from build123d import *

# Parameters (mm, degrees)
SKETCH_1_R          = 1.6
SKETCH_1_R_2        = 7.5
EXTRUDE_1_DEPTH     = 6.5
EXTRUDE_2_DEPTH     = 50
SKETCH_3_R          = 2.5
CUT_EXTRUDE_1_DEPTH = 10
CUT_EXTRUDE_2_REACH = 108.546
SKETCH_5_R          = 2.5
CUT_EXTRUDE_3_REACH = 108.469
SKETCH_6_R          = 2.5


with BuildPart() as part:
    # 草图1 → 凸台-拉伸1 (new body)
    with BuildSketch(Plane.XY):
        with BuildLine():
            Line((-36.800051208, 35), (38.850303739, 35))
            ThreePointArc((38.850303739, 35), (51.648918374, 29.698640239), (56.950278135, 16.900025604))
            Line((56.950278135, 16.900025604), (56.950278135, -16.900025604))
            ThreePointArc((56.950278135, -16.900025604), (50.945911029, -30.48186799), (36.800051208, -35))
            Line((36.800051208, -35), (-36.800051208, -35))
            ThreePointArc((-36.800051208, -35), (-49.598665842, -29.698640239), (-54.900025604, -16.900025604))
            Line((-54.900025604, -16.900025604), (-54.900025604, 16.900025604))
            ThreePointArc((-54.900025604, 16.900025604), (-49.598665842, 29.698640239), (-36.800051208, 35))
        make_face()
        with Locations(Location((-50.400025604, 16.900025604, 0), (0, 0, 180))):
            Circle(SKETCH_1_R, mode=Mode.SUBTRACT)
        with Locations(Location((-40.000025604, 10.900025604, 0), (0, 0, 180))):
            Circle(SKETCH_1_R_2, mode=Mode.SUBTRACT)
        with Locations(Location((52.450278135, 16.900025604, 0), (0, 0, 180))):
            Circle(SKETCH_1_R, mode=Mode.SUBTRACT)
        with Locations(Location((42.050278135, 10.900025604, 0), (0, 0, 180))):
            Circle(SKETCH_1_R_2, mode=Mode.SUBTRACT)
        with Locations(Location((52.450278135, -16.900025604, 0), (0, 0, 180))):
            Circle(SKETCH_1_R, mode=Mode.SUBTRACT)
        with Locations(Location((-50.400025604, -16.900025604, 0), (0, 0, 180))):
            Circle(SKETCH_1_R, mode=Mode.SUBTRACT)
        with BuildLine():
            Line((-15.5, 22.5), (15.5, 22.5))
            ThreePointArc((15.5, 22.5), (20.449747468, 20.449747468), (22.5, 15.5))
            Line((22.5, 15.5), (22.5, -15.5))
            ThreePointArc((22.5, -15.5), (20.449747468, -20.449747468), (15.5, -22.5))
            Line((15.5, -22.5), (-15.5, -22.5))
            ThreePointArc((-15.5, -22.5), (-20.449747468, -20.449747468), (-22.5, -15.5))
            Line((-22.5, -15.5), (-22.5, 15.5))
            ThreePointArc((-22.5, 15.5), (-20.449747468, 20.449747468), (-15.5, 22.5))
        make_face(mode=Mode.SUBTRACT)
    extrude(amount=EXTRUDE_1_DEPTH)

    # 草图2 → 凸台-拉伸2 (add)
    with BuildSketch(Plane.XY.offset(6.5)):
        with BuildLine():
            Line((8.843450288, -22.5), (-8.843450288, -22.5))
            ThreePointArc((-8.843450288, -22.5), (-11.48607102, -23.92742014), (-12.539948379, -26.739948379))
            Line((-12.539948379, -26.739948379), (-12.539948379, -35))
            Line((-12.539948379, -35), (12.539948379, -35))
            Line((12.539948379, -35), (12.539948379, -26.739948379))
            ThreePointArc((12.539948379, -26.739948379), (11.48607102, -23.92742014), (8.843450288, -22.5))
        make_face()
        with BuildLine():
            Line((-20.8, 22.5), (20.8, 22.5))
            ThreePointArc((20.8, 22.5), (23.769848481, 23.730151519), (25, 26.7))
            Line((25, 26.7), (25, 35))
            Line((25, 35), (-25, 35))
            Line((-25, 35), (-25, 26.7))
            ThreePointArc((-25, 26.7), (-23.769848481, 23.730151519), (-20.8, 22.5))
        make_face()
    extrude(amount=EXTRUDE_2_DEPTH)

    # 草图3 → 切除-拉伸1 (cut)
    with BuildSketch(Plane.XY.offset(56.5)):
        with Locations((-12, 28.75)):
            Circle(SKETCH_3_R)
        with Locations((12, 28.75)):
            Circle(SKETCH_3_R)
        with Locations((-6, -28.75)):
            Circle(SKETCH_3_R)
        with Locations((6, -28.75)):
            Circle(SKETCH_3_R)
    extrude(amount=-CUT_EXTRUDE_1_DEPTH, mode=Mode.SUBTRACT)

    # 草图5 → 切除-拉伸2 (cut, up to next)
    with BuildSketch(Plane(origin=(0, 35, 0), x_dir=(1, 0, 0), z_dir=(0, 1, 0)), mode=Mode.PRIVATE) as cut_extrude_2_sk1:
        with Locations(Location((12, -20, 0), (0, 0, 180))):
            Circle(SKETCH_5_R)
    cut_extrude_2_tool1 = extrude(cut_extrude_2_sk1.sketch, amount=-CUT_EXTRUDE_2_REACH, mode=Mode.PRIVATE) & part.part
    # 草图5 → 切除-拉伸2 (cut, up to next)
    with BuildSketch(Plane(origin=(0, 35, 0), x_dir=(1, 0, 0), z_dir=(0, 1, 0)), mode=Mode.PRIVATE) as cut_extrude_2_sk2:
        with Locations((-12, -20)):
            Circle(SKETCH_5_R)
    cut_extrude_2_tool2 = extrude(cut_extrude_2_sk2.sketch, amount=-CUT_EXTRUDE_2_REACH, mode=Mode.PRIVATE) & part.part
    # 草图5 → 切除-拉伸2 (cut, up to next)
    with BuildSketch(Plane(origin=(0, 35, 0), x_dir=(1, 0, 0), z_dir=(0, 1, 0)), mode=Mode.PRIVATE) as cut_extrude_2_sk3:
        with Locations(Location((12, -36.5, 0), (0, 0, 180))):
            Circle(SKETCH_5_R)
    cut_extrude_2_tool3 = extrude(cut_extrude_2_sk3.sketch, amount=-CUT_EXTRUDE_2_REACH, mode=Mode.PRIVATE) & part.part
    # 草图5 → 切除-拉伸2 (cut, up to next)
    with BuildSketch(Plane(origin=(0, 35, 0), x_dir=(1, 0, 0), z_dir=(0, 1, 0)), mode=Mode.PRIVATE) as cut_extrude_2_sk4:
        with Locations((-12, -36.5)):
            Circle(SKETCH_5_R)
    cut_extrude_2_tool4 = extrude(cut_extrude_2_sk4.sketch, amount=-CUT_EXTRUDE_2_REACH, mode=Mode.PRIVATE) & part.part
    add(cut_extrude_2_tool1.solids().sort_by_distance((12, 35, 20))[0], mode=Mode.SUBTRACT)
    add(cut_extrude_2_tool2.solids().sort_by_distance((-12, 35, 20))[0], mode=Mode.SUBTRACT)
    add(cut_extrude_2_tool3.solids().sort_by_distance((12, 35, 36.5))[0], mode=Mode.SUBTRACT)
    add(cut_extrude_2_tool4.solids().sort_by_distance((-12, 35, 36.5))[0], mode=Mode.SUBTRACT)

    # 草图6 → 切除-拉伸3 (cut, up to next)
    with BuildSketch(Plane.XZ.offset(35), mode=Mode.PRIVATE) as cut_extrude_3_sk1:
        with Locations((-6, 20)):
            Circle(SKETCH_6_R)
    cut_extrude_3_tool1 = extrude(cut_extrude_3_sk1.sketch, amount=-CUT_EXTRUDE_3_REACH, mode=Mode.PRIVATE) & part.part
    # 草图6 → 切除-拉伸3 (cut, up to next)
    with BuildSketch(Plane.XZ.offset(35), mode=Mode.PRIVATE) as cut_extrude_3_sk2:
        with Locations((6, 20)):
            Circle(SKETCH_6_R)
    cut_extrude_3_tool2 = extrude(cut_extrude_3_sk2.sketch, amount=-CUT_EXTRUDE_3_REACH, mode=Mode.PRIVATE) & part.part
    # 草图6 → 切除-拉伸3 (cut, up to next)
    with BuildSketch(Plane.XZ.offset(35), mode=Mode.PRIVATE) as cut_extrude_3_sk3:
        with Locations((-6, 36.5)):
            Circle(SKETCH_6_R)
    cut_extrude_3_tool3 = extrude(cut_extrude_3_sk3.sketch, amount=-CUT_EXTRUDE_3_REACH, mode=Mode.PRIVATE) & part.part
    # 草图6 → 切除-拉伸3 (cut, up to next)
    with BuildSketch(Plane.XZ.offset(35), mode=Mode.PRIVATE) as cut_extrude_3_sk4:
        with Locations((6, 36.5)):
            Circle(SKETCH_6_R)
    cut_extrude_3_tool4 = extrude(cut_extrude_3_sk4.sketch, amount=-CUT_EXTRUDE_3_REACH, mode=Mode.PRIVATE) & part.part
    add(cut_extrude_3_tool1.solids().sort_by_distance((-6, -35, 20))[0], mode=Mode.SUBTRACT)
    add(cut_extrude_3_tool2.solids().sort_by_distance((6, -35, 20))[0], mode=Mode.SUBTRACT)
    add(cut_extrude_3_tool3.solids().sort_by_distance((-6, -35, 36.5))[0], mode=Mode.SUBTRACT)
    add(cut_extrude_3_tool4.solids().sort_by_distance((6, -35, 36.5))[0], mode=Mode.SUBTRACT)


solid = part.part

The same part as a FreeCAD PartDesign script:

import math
import FreeCAD as App
import Part
import Sketcher
Q = App.Units.Quantity

doc = App.newDocument("Part")
body = doc.addObject("PartDesign::Body", "Body")

sketch1 = body.newObject("Sketcher::SketchObject", "Sketch")
sketch1.AttachmentSupport = (doc.getObject("XY_Plane"), [""])
sketch1.MapMode = "FlatFace"
sketch1.addGeometry([
    Part.LineSegment(App.Vector(38.9, 35, 0), App.Vector(-36.8, 35, 0)),
    Part.ArcOfCircle(Part.Circle(App.Vector(-36.8, 16.9, 0), App.Vector(0, 0, 1), 18.1), math.radians(90), math.radians(180)),
    Part.LineSegment(App.Vector(-54.9, 16.9, 0), App.Vector(-54.9, -16.9, 0)),
    Part.ArcOfCircle(Part.Circle(App.Vector(-36.8, -16.9, 0), App.Vector(0, 0, 1), 18.1), math.radians(-180), math.radians(-90)),
    Part.LineSegment(App.Vector(-36.8, -35, 0), App.Vector(36.8, -35, 0)),
    Part.ArcOfCircle(Part.Circle(App.Vector(38.9, -17, 0), App.Vector(0, 0, 1), 18.1), math.radians(-97), math.radians(0)),
    Part.LineSegment(App.Vector(57, -16.9, 0), App.Vector(57, 16.9, 0)),
    Part.ArcOfCircle(Part.Circle(App.Vector(38.9, 16.9, 0), App.Vector(0, 0, 1), 18.1), math.radians(0), math.radians(90)),
    Part.Circle(App.Vector(52.5, -16.9, 0), App.Vector(0, 0, 1), 1.6),
    Part.Circle(App.Vector(-50.4, -16.9, 0), App.Vector(0, 0, 1), 1.6),
    Part.Circle(App.Vector(42.1, 10.9, 0), App.Vector(0, 0, 1), 7.5),
    Part.Circle(App.Vector(52.5, 16.9, 0), App.Vector(0, 0, 1), 1.6),
    Part.LineSegment(App.Vector(-15.5, 22.5, 0), App.Vector(15.5, 22.5, 0)),
    Part.ArcOfCircle(Part.Circle(App.Vector(15.5, 15.5, 0), App.Vector(0, 0, 1), 7), math.radians(0), math.radians(90)),
    Part.LineSegment(App.Vector(22.5, 15.5, 0), App.Vector(22.5, -15.5, 0)),
    Part.ArcOfCircle(Part.Circle(App.Vector(15.5, -15.5, 0), App.Vector(0, 0, 1), 7), math.radians(-90), math.radians(0)),
    Part.LineSegment(App.Vector(15.5, -22.5, 0), App.Vector(-15.5, -22.5, 0)),
    Part.ArcOfCircle(Part.Circle(App.Vector(-15.5, -15.5, 0), App.Vector(0, 0, 1), 7), math.radians(-180), math.radians(-90)),
    Part.LineSegment(App.Vector(-22.5, -15.5, 0), App.Vector(-22.5, 15.5, 0)),
    Part.ArcOfCircle(Part.Circle(App.Vector(-15.5, 15.5, 0), App.Vector(0, 0, 1), 7), math.radians(90), math.radians(180)),
    Part.Circle(App.Vector(-40, 10.9, 0), App.Vector(0, 0, 1), 7.5),
    Part.Circle(App.Vector(-50.4, 16.9, 0), App.Vector(0, 0, 1), 1.6),
], False)
sketch1.addConstraint([
    Sketcher.Constraint("Tangent", 0, 2, 1, 1),
    Sketcher.Constraint("Tangent", 1, 2, 2, 1),
    Sketcher.Constraint("Tangent", 2, 2, 3, 1),
    Sketcher.Constraint("Tangent", 3, 2, 4, 1),
    Sketcher.Constraint("Coincident", 4, 2, 5, 1),
    Sketcher.Constraint("Coincident", 5, 2, 6, 1),
    Sketcher.Constraint("Tangent", 6, 2, 7, 1),
    Sketcher.Constraint("Tangent", 7, 2, 0, 1),
    Sketcher.Constraint("Tangent", 12, 2, 13, 2),
    Sketcher.Constraint("Tangent", 13, 1, 14, 1),
    Sketcher.Constraint("Tangent", 14, 2, 15, 2),
    Sketcher.Constraint("Tangent", 15, 1, 16, 1),
    Sketcher.Constraint("Tangent", 16, 2, 17, 2),
    Sketcher.Constraint("Tangent", 17, 1, 18, 1),
    Sketcher.Constraint("Tangent", 18, 2, 19, 2),
    Sketcher.Constraint("Tangent", 19, 1, 12, 1),
    Sketcher.Constraint("Horizontal", 0),
    Sketcher.Constraint("Vertical", 2),
    Sketcher.Constraint("Horizontal", 4),
    Sketcher.Constraint("Vertical", 6),
    Sketcher.Constraint("Horizontal", 12),
    Sketcher.Constraint("Vertical", 14),
    Sketcher.Constraint("Horizontal", 16),
    Sketcher.Constraint("Vertical", 18),
    Sketcher.Constraint("Equal", 1, 3),
    Sketcher.Constraint("Equal", 3, 5),
    Sketcher.Constraint("Equal", 5, 7),
    Sketcher.Constraint("Equal", 8, 9),
    Sketcher.Constraint("Equal", 9, 11),
    Sketcher.Constraint("Equal", 13, 15),
    Sketcher.Constraint("Equal", 15, 17),
    Sketcher.Constraint("Equal", 17, 19),
    Sketcher.Constraint("Equal", 10, 20),
    Sketcher.Constraint("Equal", 11, 21),
    Sketcher.Constraint("Symmetric", 13, 3, 17, 3, -1, 1),
    Sketcher.Constraint("Symmetric", 0, 2, 4, 2, -1, 1),
    Sketcher.Constraint("Symmetric", 8, 3, 11, 3, -1),
    Sketcher.Constraint("Symmetric", 9, 3, 21, 3, -1),
    Sketcher.Constraint("Horizontal", 3, 3, 8, 3),
    Sketcher.Constraint("Horizontal", 8, 3, 9, 3),
    Sketcher.Constraint("Horizontal", 10, 3, 20, 3),
    Sketcher.Constraint("Horizontal", 2, 2, 5, 2),
    Sketcher.Constraint("Equal", 16, 14),
    Sketcher.Constraint("Diameter", 10, Q("15 mm")),
    Sketcher.Constraint("Radius", 13, Q("7 mm")),
    Sketcher.Constraint("Diameter", 8, Q("3.2 mm")),
    Sketcher.Constraint("DistanceX", 12, 1, 12, 2, Q("31 mm")),
    Sketcher.Constraint("DistanceY", -1, 1, 0, 2, Q("35 mm")),
    Sketcher.Constraint("DistanceY", 10, 3, 7, 3, Q("6 mm")),
    Sketcher.Constraint("DistanceX", 10, 3, 8, 3, Q("10.4 mm")),
    Sketcher.Constraint("DistanceX", 9, 3, 20, 3, Q("10.4 mm")),
    Sketcher.Constraint("DistanceX", 1, 2, 21, 3, Q("4.5 mm")),
    Sketcher.Constraint("DistanceX", 8, 3, 5, 2, Q("4.5 mm")),
    Sketcher.Constraint("Radius", 1, Q("18.099974 mm")),
    Sketcher.Constraint("DistanceX", 0, 2, 0, 1, Q("75.650355 mm")),
    Sketcher.Constraint("DistanceX", 4, 1, 4, 2, Q("73.600102 mm")),
])
pad1 = body.newObject("PartDesign::Pad", "Pad")
pad1.Profile = sketch1
pad1.Length = 6.5

sketch2 = body.newObject("Sketcher::SketchObject", "Sketch001")
sketch2.AttachmentSupport = (doc.getObject("XY_Plane"), [""])
sketch2.MapMode = "FlatFace"
sketch2.AttachmentOffset = App.Placement(App.Vector(0, 0, 6.5), App.Rotation())
sketch2.addGeometry([
    Part.LineSegment(App.Vector(8.8, -22.5, 0), App.Vector(-8.8, -22.5, 0)),
    Part.ArcOfCircle(Part.Circle(App.Vector(-8.3, -26.7, 0), App.Vector(0, 0, 1), 4.3), math.radians(98), math.radians(180)),
    Part.LineSegment(App.Vector(-12.5, -26.7, 0), App.Vector(-12.5, -35, 0)),
    Part.LineSegment(App.Vector(-12.5, -35, 0), App.Vector(12.5, -35, 0)),
    Part.LineSegment(App.Vector(12.5, -35, 0), App.Vector(12.5, -26.7, 0)),
    Part.ArcOfCircle(Part.Circle(App.Vector(8.3, -26.7, 0), App.Vector(0, 0, 1), 4.3), math.radians(0), math.radians(82)),
    Part.LineSegment(App.Vector(-20.8, 22.5, 0), App.Vector(20.8, 22.5, 0)),
    Part.ArcOfCircle(Part.Circle(App.Vector(20.8, 26.7, 0), App.Vector(0, 0, 1), 4.2), math.radians(-90), math.radians(0)),
    Part.LineSegment(App.Vector(25, 26.7, 0), App.Vector(25, 35, 0)),
    Part.LineSegment(App.Vector(25, 35, 0), App.Vector(-25, 35, 0)),
    Part.LineSegment(App.Vector(-25, 35, 0), App.Vector(-25, 26.7, 0)),
    Part.ArcOfCircle(Part.Circle(App.Vector(-20.8, 26.7, 0), App.Vector(0, 0, 1), 4.2), math.radians(180), math.radians(270)),
], False)
sketch2.addConstraint([
    Sketcher.Constraint("Coincident", 0, 2, 1, 1),
    Sketcher.Constraint("Tangent", 1, 2, 2, 1),
    Sketcher.Constraint("Coincident", 2, 2, 3, 1),
    Sketcher.Constraint("Coincident", 3, 2, 4, 1),
    Sketcher.Constraint("Tangent", 4, 2, 5, 1),
    Sketcher.Constraint("Coincident", 5, 2, 0, 1),
    Sketcher.Constraint("Tangent", 6, 2, 7, 1),
    Sketcher.Constraint("Tangent", 7, 2, 8, 1),
    Sketcher.Constraint("Coincident", 8, 2, 9, 1),
    Sketcher.Constraint("Coincident", 9, 2, 10, 1),
    Sketcher.Constraint("Tangent", 10, 2, 11, 1),
    Sketcher.Constraint("Tangent", 11, 2, 6, 1),
    Sketcher.Constraint("Horizontal", 0),
    Sketcher.Constraint("Vertical", 2),
    Sketcher.Constraint("Horizontal", 3),
    Sketcher.Constraint("Vertical", 4),
    Sketcher.Constraint("Horizontal", 6),
    Sketcher.Constraint("Vertical", 8),
    Sketcher.Constraint("Horizontal", 9),
    Sketcher.Constraint("Vertical", 10),
    Sketcher.Constraint("Equal", 1, 5),
    Sketcher.Constraint("Equal", 7, 11),
    Sketcher.Constraint("Symmetric", 1, 3, 5, 3, -2),
    Sketcher.Constraint("Radius", 7, Q("4.2 mm")),
    Sketcher.Constraint("DistanceX", 9, 2, 9, 1, Q("50 mm")),
    Sketcher.Constraint("DistanceY", 8, 1, 8, 2, Q("8.3 mm")),
    Sketcher.Constraint("DistanceY", 2, 2, -1, 1, Q("35 mm")),
    Sketcher.Constraint("DistanceX", -1, 1, 7, 2, Q("25 mm")),
    Sketcher.Constraint("DistanceY", -1, 1, 8, 2, Q("35 mm")),
    Sketcher.Constraint("DistanceY", 5, 2, 6, 2, Q("45 mm")),
    Sketcher.Constraint("DistanceX", 1, 2, 5, 3, Q("20.8 mm")),
    Sketcher.Constraint("DistanceX", 0, 2, 0, 1, Q("17.686901 mm")),
    Sketcher.Constraint("Radius", 1, Q("4.279897 mm")),
])
pad2 = body.newObject("PartDesign::Pad", "Pad001")
pad2.Profile = sketch2
pad2.Length = 50

sketch3 = body.newObject("Sketcher::SketchObject", "Sketch002")
sketch3.AttachmentSupport = (doc.getObject("XY_Plane"), [""])
sketch3.MapMode = "FlatFace"
sketch3.AttachmentOffset = App.Placement(App.Vector(0, 0, 56.5), App.Rotation())
sketch3.addGeometry([
    Part.Circle(App.Vector(-12, 28.8, 0), App.Vector(0, 0, 1), 2.5),
    Part.Circle(App.Vector(12, 28.8, 0), App.Vector(0, 0, 1), 2.5),
    Part.Circle(App.Vector(-6, -28.8, 0), App.Vector(0, 0, 1), 2.5),
    Part.Circle(App.Vector(6, -28.8, 0), App.Vector(0, 0, 1), 2.5),
], False)
sketch3.addConstraint([
    Sketcher.Constraint("Equal", 0, 1),
    Sketcher.Constraint("Equal", 1, 2),
    Sketcher.Constraint("Equal", 2, 3),
    Sketcher.Constraint("Symmetric", 0, 3, 1, 3, -2),
    Sketcher.Constraint("Symmetric", 2, 3, 3, 3, -2),
    Sketcher.Constraint("Diameter", 0, Q("5 mm")),
    Sketcher.Constraint("DistanceX", 0, 3, -1, 1, Q("12 mm")),
    Sketcher.Constraint("DistanceX", 2, 3, -1, 1, Q("6 mm")),
    Sketcher.Constraint("DistanceY", 2, 3, 0, 3, Q("57.5 mm")),
    Sketcher.Constraint("DistanceY", -1, 1, 0, 3, Q("28.75 mm")),
])
pocket1 = body.newObject("PartDesign::Pocket", "Pocket")
pocket1.Profile = sketch3
pocket1.Length = 10

sketch4 = body.newObject("Sketcher::SketchObject", "Sketch003")
sketch4.AttachmentSupport = (doc.getObject("XZ_Plane"), [""])
sketch4.MapMode = "FlatFace"
sketch4.AttachmentOffset = App.Placement(App.Vector(0, 0, -35), App.Rotation())
sketch4.addGeometry(Part.Circle(App.Vector(12, 20, 0), App.Vector(0, 0, 1), 2.5), False)
sketch4.addConstraint([
    Sketcher.Constraint("Diameter", 0, Q("5 mm")),
    Sketcher.Constraint("DistanceX", -1, 1, 0, 3, Q("12 mm")),
    Sketcher.Constraint("DistanceY", -1, 1, 0, 3, Q("20 mm")),
])
pocket2 = body.newObject("PartDesign::Pocket", "Pocket001")
pocket2.Profile = sketch4
pocket2.Type = "UpToFirst"
pocket2.Reversed = True

sketch5 = body.newObject("Sketcher::SketchObject", "Sketch004")
sketch5.AttachmentSupport = (doc.getObject("XZ_Plane"), [""])
sketch5.MapMode = "FlatFace"
sketch5.AttachmentOffset = App.Placement(App.Vector(0, 0, -35), App.Rotation())
sketch5.addGeometry(Part.Circle(App.Vector(-12, 20, 0), App.Vector(0, 0, 1), 2.5), False)
sketch5.addConstraint([
    Sketcher.Constraint("Diameter", 0, Q("5 mm")),
    Sketcher.Constraint("DistanceX", 0, 3, -1, 1, Q("12 mm")),
    Sketcher.Constraint("DistanceY", -1, 1, 0, 3, Q("20 mm")),
])
pocket3 = body.newObject("PartDesign::Pocket", "Pocket002")
pocket3.Profile = sketch5
pocket3.Type = "UpToFirst"
pocket3.Reversed = True

sketch6 = body.newObject("Sketcher::SketchObject", "Sketch005")
sketch6.AttachmentSupport = (doc.getObject("XZ_Plane"), [""])
sketch6.MapMode = "FlatFace"
sketch6.AttachmentOffset = App.Placement(App.Vector(0, 0, -35), App.Rotation())
sketch6.addGeometry(Part.Circle(App.Vector(12, 36.5, 0), App.Vector(0, 0, 1), 2.5), False)
sketch6.addConstraint([
    Sketcher.Constraint("Diameter", 0, Q("5 mm")),
    Sketcher.Constraint("DistanceX", -1, 1, 0, 3, Q("12 mm")),
    Sketcher.Constraint("DistanceY", -1, 1, 0, 3, Q("36.5 mm")),
])
pocket4 = body.newObject("PartDesign::Pocket", "Pocket003")
pocket4.Profile = sketch6
pocket4.Type = "UpToFirst"
pocket4.Reversed = True

sketch7 = body.newObject("Sketcher::SketchObject", "Sketch006")
sketch7.AttachmentSupport = (doc.getObject("XZ_Plane"), [""])
sketch7.MapMode = "FlatFace"
sketch7.AttachmentOffset = App.Placement(App.Vector(0, 0, -35), App.Rotation())
sketch7.addGeometry(Part.Circle(App.Vector(-12, 36.5, 0), App.Vector(0, 0, 1), 2.5), False)
sketch7.addConstraint([
    Sketcher.Constraint("Diameter", 0, Q("5 mm")),
    Sketcher.Constraint("DistanceX", 0, 3, -1, 1, Q("12 mm")),
    Sketcher.Constraint("DistanceY", -1, 1, 0, 3, Q("36.5 mm")),
])
pocket5 = body.newObject("PartDesign::Pocket", "Pocket004")
pocket5.Profile = sketch7
pocket5.Type = "UpToFirst"
pocket5.Reversed = True

sketch8 = body.newObject("Sketcher::SketchObject", "Sketch007")
sketch8.AttachmentSupport = (doc.getObject("XZ_Plane"), [""])
sketch8.MapMode = "FlatFace"
sketch8.AttachmentOffset = App.Placement(App.Vector(0, 0, 35), App.Rotation())
sketch8.addGeometry(Part.Circle(App.Vector(-6, 20, 0), App.Vector(0, 0, 1), 2.5), False)
sketch8.addConstraint([
    Sketcher.Constraint("Diameter", 0, Q("5 mm")),
    Sketcher.Constraint("DistanceX", 0, 3, -1, 1, Q("6 mm")),
    Sketcher.Constraint("DistanceY", -1, 1, 0, 3, Q("20 mm")),
])
pocket6 = body.newObject("PartDesign::Pocket", "Pocket005")
pocket6.Profile = sketch8
pocket6.Type = "UpToFirst"

sketch9 = body.newObject("Sketcher::SketchObject", "Sketch008")
sketch9.AttachmentSupport = (doc.getObject("XZ_Plane"), [""])
sketch9.MapMode = "FlatFace"
sketch9.AttachmentOffset = App.Placement(App.Vector(0, 0, 35), App.Rotation())
sketch9.addGeometry(Part.Circle(App.Vector(6, 20, 0), App.Vector(0, 0, 1), 2.5), False)
sketch9.addConstraint([
    Sketcher.Constraint("Diameter", 0, Q("5 mm")),
    Sketcher.Constraint("DistanceX", -1, 1, 0, 3, Q("6 mm")),
    Sketcher.Constraint("DistanceY", -1, 1, 0, 3, Q("20 mm")),
])
pocket7 = body.newObject("PartDesign::Pocket", "Pocket006")
pocket7.Profile = sketch9
pocket7.Type = "UpToFirst"

sketch10 = body.newObject("Sketcher::SketchObject", "Sketch009")
sketch10.AttachmentSupport = (doc.getObject("XZ_Plane"), [""])
sketch10.MapMode = "FlatFace"
sketch10.AttachmentOffset = App.Placement(App.Vector(0, 0, 35), App.Rotation())
sketch10.addGeometry(Part.Circle(App.Vector(-6, 36.5, 0), App.Vector(0, 0, 1), 2.5), False)
sketch10.addConstraint([
    Sketcher.Constraint("Diameter", 0, Q("5 mm")),
    Sketcher.Constraint("DistanceX", 0, 3, -1, 1, Q("6 mm")),
    Sketcher.Constraint("DistanceY", -1, 1, 0, 3, Q("36.5 mm")),
])
pocket8 = body.newObject("PartDesign::Pocket", "Pocket007")
pocket8.Profile = sketch10
pocket8.Type = "UpToFirst"

sketch11 = body.newObject("Sketcher::SketchObject", "Sketch010")
sketch11.AttachmentSupport = (doc.getObject("XZ_Plane"), [""])
sketch11.MapMode = "FlatFace"
sketch11.AttachmentOffset = App.Placement(App.Vector(0, 0, 35), App.Rotation())
sketch11.addGeometry(Part.Circle(App.Vector(6, 36.5, 0), App.Vector(0, 0, 1), 2.5), False)
sketch11.addConstraint([
    Sketcher.Constraint("Diameter", 0, Q("5 mm")),
    Sketcher.Constraint("DistanceX", -1, 1, 0, 3, Q("6 mm")),
    Sketcher.Constraint("DistanceY", -1, 1, 0, 3, Q("36.5 mm")),
])
pocket9 = body.newObject("PartDesign::Pocket", "Pocket008")
pocket9.Profile = sketch11
pocket9.Type = "UpToFirst"

doc.recompute()
